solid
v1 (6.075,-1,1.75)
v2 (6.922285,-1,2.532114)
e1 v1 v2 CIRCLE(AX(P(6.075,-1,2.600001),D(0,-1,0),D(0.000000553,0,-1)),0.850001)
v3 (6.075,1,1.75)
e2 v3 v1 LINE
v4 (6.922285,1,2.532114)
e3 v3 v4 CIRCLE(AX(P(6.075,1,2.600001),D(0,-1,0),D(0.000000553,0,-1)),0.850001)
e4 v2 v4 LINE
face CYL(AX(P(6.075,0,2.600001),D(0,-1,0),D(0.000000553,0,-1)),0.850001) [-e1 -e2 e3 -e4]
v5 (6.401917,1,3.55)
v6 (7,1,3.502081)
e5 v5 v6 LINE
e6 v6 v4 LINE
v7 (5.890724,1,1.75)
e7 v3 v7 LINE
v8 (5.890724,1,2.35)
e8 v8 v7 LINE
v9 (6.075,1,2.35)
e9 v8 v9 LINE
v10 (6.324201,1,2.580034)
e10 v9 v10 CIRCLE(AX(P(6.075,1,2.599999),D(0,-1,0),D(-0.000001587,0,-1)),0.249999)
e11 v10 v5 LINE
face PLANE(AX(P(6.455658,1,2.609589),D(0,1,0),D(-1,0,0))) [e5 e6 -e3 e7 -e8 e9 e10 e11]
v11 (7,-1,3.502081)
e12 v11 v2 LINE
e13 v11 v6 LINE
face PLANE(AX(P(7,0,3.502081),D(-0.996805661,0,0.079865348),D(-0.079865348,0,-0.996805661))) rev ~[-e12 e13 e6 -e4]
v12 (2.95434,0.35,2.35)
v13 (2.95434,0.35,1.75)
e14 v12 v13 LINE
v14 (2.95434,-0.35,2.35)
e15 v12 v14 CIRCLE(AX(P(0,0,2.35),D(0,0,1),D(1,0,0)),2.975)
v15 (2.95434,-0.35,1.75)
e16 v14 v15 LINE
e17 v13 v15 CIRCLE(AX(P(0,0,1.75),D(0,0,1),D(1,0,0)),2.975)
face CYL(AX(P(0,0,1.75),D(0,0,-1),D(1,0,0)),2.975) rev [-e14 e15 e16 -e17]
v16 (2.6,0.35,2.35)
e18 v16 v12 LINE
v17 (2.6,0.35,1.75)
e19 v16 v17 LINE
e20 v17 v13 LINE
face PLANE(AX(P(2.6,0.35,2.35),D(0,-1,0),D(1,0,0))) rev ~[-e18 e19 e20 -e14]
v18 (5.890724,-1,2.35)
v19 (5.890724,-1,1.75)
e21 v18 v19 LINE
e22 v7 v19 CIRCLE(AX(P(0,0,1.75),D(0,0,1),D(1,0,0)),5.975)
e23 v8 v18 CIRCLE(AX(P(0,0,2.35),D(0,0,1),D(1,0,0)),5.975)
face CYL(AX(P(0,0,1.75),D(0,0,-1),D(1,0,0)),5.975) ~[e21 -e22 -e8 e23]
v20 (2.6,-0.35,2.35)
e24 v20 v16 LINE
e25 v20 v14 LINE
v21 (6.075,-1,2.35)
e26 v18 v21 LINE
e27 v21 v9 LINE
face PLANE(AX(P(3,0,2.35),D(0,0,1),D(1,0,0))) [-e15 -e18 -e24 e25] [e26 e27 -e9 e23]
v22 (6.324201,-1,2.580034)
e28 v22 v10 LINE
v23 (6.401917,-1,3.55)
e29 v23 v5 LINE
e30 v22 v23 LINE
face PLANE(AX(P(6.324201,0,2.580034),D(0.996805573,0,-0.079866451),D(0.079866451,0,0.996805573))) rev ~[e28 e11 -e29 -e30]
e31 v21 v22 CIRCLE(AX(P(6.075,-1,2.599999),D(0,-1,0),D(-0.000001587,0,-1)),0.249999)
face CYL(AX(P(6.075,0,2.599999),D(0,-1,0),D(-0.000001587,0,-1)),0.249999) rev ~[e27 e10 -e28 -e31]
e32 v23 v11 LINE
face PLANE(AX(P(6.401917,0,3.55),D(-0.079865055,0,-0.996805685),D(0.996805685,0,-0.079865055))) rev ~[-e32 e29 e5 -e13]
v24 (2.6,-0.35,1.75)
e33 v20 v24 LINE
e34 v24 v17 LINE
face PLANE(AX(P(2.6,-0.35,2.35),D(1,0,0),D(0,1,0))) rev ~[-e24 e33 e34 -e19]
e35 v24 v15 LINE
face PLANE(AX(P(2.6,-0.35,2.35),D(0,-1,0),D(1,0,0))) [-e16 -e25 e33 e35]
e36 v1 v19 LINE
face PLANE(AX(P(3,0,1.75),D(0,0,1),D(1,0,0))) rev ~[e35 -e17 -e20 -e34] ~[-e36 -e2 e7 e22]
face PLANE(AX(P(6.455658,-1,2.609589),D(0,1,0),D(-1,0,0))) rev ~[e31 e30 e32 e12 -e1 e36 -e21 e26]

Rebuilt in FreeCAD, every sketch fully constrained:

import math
import FreeCAD as App
import Part
import Sketcher
from FreeCAD import Vector

doc = App.newDocument("Part")
body = doc.addObject("PartDesign::Body", "Body")

# Sketch on XY plane
sketch1 = doc.addObject("Sketcher::SketchObject", "Sketch")
body.addObject(sketch1)
sketch1.AttachmentSupport = (doc.XY_Plane, [""])
sketch1.MapMode = "FlatFace"
sketch1.addGeometry(Part.Circle(Vector(0, 0, 0), Vector(0, 0, 1), 6), False)
sketch1.addGeometry(Part.Circle(Vector(0, 0, 0), Vector(0, 0, 1), 3), False)
sketch1.addConstraint(Sketcher.Constraint("Coincident", 0, 3, -1, 1))
sketch1.addConstraint(Sketcher.Constraint("Coincident", 1, 3, -1, 1))
sketch1.addConstraint(Sketcher.Constraint("Diameter", 0, 11.95))
sketch1.addConstraint(Sketcher.Constraint("Diameter", 1, 5.95))
pad1 = doc.addObject("PartDesign::Pad", "Pad")
body.addObject(pad1)
pad1.Profile = sketch1
pad1.Length = 0.6

# Sketch on XZ plane
sketch2 = doc.addObject("Sketcher::SketchObject", "Sketch001")
body.addObject(sketch2)
sketch2.AttachmentSupport = (doc.XZ_Plane, [""])
sketch2.MapMode = "FlatFace"
sketch2.addGeometry(Part.LineSegment(Vector(6.08, 0.6, 0), Vector(5.83, 0.6, 0)), False)
sketch2.addGeometry(Part.LineSegment(Vector(5.83, 0.6, 0), Vector(5.83, 0, 0)), False)
sketch2.addGeometry(Part.LineSegment(Vector(5.83, 0, 0), Vector(6.08, 0, 0)), False)
sketch2.addGeometry(Part.ArcOfCircle(Part.Circle(Vector(6.07, 0.85, 0), Vector(0, 0, 1), 0.85), math.radians(-90), math.radians(-5)), False)
sketch2.addGeometry(Part.LineSegment(Vector(6.92, 0.78, 0), Vector(7, 1.75, 0)), False)
sketch2.addGeometry(Part.LineSegment(Vector(7, 1.75, 0), Vector(6.4, 1.8, 0)), False)
sketch2.addGeometry(Part.LineSegment(Vector(6.4, 1.8, 0), Vector(6.32, 0.83, 0)), False)
sketch2.addGeometry(Part.ArcOfCircle(Part.Circle(Vector(6.08, 0.85, 0), Vector(0, 0, 1), 0.25), math.radians(-90), math.radians(-5)), False)
sketch2.addConstraint(Sketcher.Constraint("Coincident", 0, 2, 1, 1))
sketch2.addConstraint(Sketcher.Constraint("Coincident", 1, 2, 2, 1))
sketch2.addConstraint(Sketcher.Constraint("Tangent", 2, 2, 3, 1))
sketch2.addConstraint(Sketcher.Constraint("Tangent", 3, 2, 4, 1))
sketch2.addConstraint(Sketcher.Constraint("Coincident", 4, 2, 5, 1))
sketch2.addConstraint(Sketcher.Constraint("Coincident", 5, 2, 6, 1))
sketch2.addConstraint(Sketcher.Constraint("Coincident", 6, 2, 7, 2))
sketch2.addConstraint(Sketcher.Constraint("Tangent", 7, 1, 0, 1))
sketch2.addConstraint(Sketcher.Constraint("Horizontal", 0))
sketch2.addConstraint(Sketcher.Constraint("Vertical", 1))
sketch2.addConstraint(Sketcher.Constraint("Horizontal", 2))
sketch2.addConstraint(Sketcher.Constraint("Coincident", 7, 3, 3, 3))
sketch2.addConstraint(Sketcher.Constraint("PointOnObject", 1, 2, -1))
sketch2.addConstraint(Sketcher.Constraint("Perpendicular", 4, 5))
sketch2.addConstraint(Sketcher.Constraint("Perpendicular", 5, 6))
sketch2.addConstraint(Sketcher.Constraint("Equal", 4, 6))
sketch2.addConstraint(Sketcher.Constraint("Radius", 3, 0.850001))
sketch2.addConstraint(Sketcher.Constraint("Radius", 7, 0.249999))
sketch2.addConstraint(Sketcher.Constraint("DistanceX", -1, 1, 4, 2, 7.0))
sketch2.addConstraint(Sketcher.Constraint("DistanceX", 0, 2, 0, 1, 0.25))
sketch2.addConstraint(Sketcher.Constraint("DistanceY", -1, 1, 5, 2, 1.8))
sketch2.addConstraint(Sketcher.Constraint("DistanceX", -1, 1, 3, 3, 6.075))
pad2 = doc.addObject("PartDesign::Pad", "Pad001")
body.addObject(pad2)
pad2.Profile = sketch2
pad2.Length = 2
pad2.Midplane = True

# Sketch on XY plane
sketch3 = doc.addObject("Sketcher::SketchObject", "Sketch002")
body.addObject(sketch3)
sketch3.AttachmentSupport = (doc.XY_Plane, [""])
sketch3.MapMode = "FlatFace"
sketch3.AttachmentOffset = App.Placement(Vector(0, 0, 0.6), App.Rotation())
sketch3.addGeometry(Part.LineSegment(Vector(2.6, 0.3, 0), Vector(2.6, -0.3, 0)), False)
sketch3.addGeometry(Part.LineSegment(Vector(2.6, -0.3, 0), Vector(3.4, -0.3, 0)), False)
sketch3.addGeometry(Part.LineSegment(Vector(3.4, -0.3, 0), Vector(3.4, 0.3, 0)), False)
sketch3.addGeometry(Part.LineSegment(Vector(3.4, 0.3, 0), Vector(2.6, 0.3, 0)), False)
sketch3.addConstraint(Sketcher.Constraint("Coincident", 0, 2, 1, 1))
sketch3.addConstraint(Sketcher.Constraint("Coincident", 1, 2, 2, 1))
sketch3.addConstraint(Sketcher.Constraint("Coincident", 2, 2, 3, 1))
sketch3.addConstraint(Sketcher.Constraint("Coincident", 3, 2, 0, 1))
sketch3.addConstraint(Sketcher.Constraint("Vertical", 0))
sketch3.addConstraint(Sketcher.Constraint("Horizontal", 1))
sketch3.addConstraint(Sketcher.Constraint("Vertical", 2))
sketch3.addConstraint(Sketcher.Constraint("Horizontal", 3))
sketch3.addConstraint(Sketcher.Constraint("DistanceX", 1, 1, 1, 2, 0.8))
sketch3.addConstraint(Sketcher.Constraint("DistanceY", 0, 2, 0, 1, 0.7))
sketch3.addConstraint(Sketcher.Constraint("DistanceX", -1, 1, 0, 2, 2.6))
sketch3.addConstraint(Sketcher.Constraint("DistanceY", 0, 2, -1, 1, 0.35))
pad3 = doc.addObject("PartDesign::Pad", "Pad002")
body.addObject(pad3)
pad3.Profile = sketch3
pad3.Length = 0.6
pad3.Reversed = True
body2 = doc.addObject("PartDesign::Body", "Body001")
doc.recompute()

body.Placement = App.Placement(Vector(0, 0, 1.75), App.Rotation(Vector(0, 0, 1), 0))
boolean = doc.addObject("PartDesign::Boolean", "Boolean")
body2.addObject(boolean)
boolean.Type = "Fuse"
boolean.addObjects([body])

doc.recompute()
